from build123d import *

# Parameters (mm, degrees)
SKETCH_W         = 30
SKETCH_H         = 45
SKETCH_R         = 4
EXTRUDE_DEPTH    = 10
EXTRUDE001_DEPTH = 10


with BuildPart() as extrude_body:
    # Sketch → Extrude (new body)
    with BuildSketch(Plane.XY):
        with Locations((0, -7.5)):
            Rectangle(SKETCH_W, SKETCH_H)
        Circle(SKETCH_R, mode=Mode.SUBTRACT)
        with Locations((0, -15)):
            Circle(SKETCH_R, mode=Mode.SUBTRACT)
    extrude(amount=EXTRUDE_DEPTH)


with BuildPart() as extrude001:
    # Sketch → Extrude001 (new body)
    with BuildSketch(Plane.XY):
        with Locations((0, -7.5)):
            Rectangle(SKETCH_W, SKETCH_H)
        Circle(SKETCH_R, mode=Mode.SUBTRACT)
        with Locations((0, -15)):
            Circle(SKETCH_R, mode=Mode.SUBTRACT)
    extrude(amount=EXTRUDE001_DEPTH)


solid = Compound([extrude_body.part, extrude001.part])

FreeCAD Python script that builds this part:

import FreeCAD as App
import Part
import Sketcher
from FreeCAD import Vector
Q = App.Units.Quantity


def add_polygon(sketch, points):
    """Adds a closed chain of lines whose ends are joined by coincident constraints."""
    first, n = sketch.GeometryCount, len(points)
    for a, b in zip(points, points[1:] + points[:1]):
        sketch.addGeometry(Part.LineSegment(App.Vector(*a, 0), App.Vector(*b, 0)), False)
    for i in range(n):
        sketch.addConstraint(Sketcher.Constraint("Coincident", first + i, 2, first + (i + 1) % n, 1))

doc = App.newDocument("Part")
params = doc.addObject("Spreadsheet::Sheet", "Params")
for row, (alias, value) in enumerate([
    ("sketch1_diameter", "8 mm"),
    ("sketch1_width", "30 mm"),
    ("sketch1_height", "45 mm"),
    ("pad1_length", "10 mm"),
    ("sketch2_diameter", "8 mm"),
    ("sketch2_width", "30 mm"),
    ("sketch2_height", "45 mm"),
    ("pad2_length", "10 mm"),
], start=1):
    params.set(f"A{row}", alias)
    params.set(f"B{row}", "=" + value)
    params.setAlias(f"B{row}", alias)

body = doc.addObject("PartDesign::Body", "Body")

sketch1 = body.newObject("Sketcher::SketchObject", "Sketch")
sketch1.AttachmentSupport = (doc.getObject("XY_Plane"), [""])
sketch1.MapMode = "FlatFace"
add_polygon(sketch1, [(-15, 15), (-15, -30), (15, -30), (15, 15)])
sketch1.addGeometry(Part.Circle(Vector(0, -15, 0), Vector(0, 0, 1), 4), False)
sketch1.addGeometry(Part.Circle(Vector(0, 0, 0), Vector(0, 0, 1), 4), False)
sketch1.addConstraint([
    Sketcher.Constraint("Vertical", 0),
    Sketcher.Constraint("Horizontal", 1),
    Sketcher.Constraint("Vertical", 2),
    Sketcher.Constraint("Horizontal", 3),
    Sketcher.Constraint("Coincident", 5, 3, -1, 1),
    Sketcher.Constraint("Equal", 4, 5),
    Sketcher.Constraint("PointOnObject", 4, 3, -2),
    Sketcher.Constraint("Diameter", 4, Q("8 mm")),
    Sketcher.Constraint("DistanceX", 1, 1, 1, 2, Q("30 mm")),
    Sketcher.Constraint("DistanceY", 0, 2, 0, 1, Q("45 mm")),
    Sketcher.Constraint("DistanceY", 4, 3, -1, 1, Q("15 mm")),
    Sketcher.Constraint("DistanceX", 0, 2, -1, 1, Q("15 mm")),
    Sketcher.Constraint("DistanceY", 0, 2, -1, 1, Q("30 mm")),
])
sketch1.setExpression("Constraints[11]", "Params.sketch1_diameter")
sketch1.setExpression("Constraints[12]", "Params.sketch1_width")
sketch1.setExpression("Constraints[13]", "Params.sketch1_height")
pad1 = body.newObject("PartDesign::Pad", "Pad")
pad1.Profile = sketch1
pad1.setExpression("Length", "Params.pad1_length")
body2 = doc.addObject("PartDesign::Body", "Body001")

sketch2 = body2.newObject("Sketcher::SketchObject", "Sketch001")
sketch2.AttachmentSupport = (doc.getObject("XY_Plane001"), [""])
sketch2.MapMode = "FlatFace"
add_polygon(sketch2, [(-15, 15), (-15, -30), (15, -30), (15, 15)])
sketch2.addGeometry(Part.Circle(Vector(0, -15, 0), Vector(0, 0, 1), 4), False)
sketch2.addGeometry(Part.Circle(Vector(0, 0, 0), Vector(0, 0, 1), 4), False)
sketch2.addConstraint([
    Sketcher.Constraint("Vertical", 0),
    Sketcher.Constraint("Horizontal", 1),
    Sketcher.Constraint("Vertical", 2),
    Sketcher.Constraint("Horizontal", 3),
    Sketcher.Constraint("Coincident", 5, 3, -1, 1),
    Sketcher.Constraint("Equal", 4, 5),
    Sketcher.Constraint("PointOnObject", 4, 3, -2),
    Sketcher.Constraint("Diameter", 4, Q("8 mm")),
    Sketcher.Constraint("DistanceX", 1, 1, 1, 2, Q("30 mm")),
    Sketcher.Constraint("DistanceY", 0, 2, 0, 1, Q("45 mm")),
    Sketcher.Constraint("DistanceY", 4, 3, -1, 1, Q("15 mm")),
    Sketcher.Constraint("DistanceX", 0, 2, -1, 1, Q("15 mm")),
    Sketcher.Constraint("DistanceY", 0, 2, -1, 1, Q("30 mm")),
])
sketch2.setExpression("Constraints[11]", "Params.sketch2_diameter")
sketch2.setExpression("Constraints[12]", "Params.sketch2_width")
sketch2.setExpression("Constraints[13]", "Params.sketch2_height")
pad2 = body2.newObject("PartDesign::Pad", "Pad001")
pad2.Profile = sketch2
pad2.setExpression("Length", "Params.pad2_length")

doc.recompute()
